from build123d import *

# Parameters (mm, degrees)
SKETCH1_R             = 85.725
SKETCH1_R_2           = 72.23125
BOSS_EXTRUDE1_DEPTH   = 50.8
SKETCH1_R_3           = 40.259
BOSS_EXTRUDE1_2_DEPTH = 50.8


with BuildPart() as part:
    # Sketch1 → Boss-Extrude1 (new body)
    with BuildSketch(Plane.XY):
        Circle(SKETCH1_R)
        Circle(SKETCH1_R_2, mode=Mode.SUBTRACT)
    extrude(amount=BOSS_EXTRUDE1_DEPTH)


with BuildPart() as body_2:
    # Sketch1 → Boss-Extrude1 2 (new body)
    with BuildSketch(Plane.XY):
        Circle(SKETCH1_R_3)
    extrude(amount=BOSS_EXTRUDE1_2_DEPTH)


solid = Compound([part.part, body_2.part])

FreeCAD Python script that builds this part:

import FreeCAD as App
import Part
import Sketcher
from FreeCAD import Vector
Q = App.Units.Quantity

doc = App.newDocument("Part")
body = doc.addObject("PartDesign::Body", "Body")

# Sketch on XY plane
sketch1 = body.newObject("Sketcher::SketchObject", "Sketch")
sketch1.AttachmentSupport = (doc.getObject("XY_Plane"), [""])
sketch1.MapMode = "FlatFace"
sketch1.addGeometry(Part.Circle(Vector(0, 0, 0), Vector(0, 0, 1), 85.725), False)
sketch1.addGeometry(Part.Circle(Vector(0, 0, 0), Vector(0, 0, 1), 72.23125), False)
sketch1.addConstraint(Sketcher.Constraint("Coincident", 0, 3, -1, 1))
sketch1.addConstraint(Sketcher.Constraint("Coincident", 1, 3, -1, 1))
sketch1.addConstraint(Sketcher.Constraint("Diameter", 0, Q("6.75 in")))
sketch1.addConstraint(Sketcher.Constraint("Diameter", 1, Q("5.6875 in")))
pad1 = body.newObject("PartDesign::Pad", "Pad")
pad1.Profile = sketch1
pad1.Length = Q("2 in")
body2 = doc.addObject("PartDesign::Body", "Body001")

# Sketch on XY plane
sketch2 = body2.newObject("Sketcher::SketchObject", "Sketch001")
sketch2.AttachmentSupport = (doc.getObject("XY_Plane001"), [""])
sketch2.MapMode = "FlatFace"
sketch2.addGeometry(Part.Circle(Vector(0, 0, 0), Vector(0, 0, 1), 40.259), False)
sketch2.addConstraint(Sketcher.Constraint("Coincident", 0, 3, -1, 1))
sketch2.addConstraint(Sketcher.Constraint("Diameter", 0, Q("3.17 in")))
pad2 = body2.newObject("PartDesign::Pad", "Pad001")
pad2.Profile = sketch2
pad2.Length = Q("2 in")

doc.recompute()
